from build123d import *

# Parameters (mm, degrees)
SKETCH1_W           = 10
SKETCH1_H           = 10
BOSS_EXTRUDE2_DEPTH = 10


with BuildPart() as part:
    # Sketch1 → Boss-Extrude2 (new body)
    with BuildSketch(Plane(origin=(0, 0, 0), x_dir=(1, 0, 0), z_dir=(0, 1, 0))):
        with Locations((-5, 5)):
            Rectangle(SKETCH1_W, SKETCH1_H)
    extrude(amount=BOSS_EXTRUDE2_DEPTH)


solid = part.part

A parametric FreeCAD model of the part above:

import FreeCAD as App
import Part
import Sketcher
from FreeCAD import Vector


def add_polygon(sketch, points):
    """Adds a closed chain of lines whose ends are joined by coincident constraints."""
    first, n = sketch.GeometryCount, len(points)
    for a, b in zip(points, points[1:] + points[:1]):
        sketch.addGeometry(Part.LineSegment(App.Vector(*a, 0), App.Vector(*b, 0)), False)
    for i in range(n):
        sketch.addConstraint(Sketcher.Constraint("Coincident", first + i, 2, first + (i + 1) % n, 1))

doc = App.newDocument("Part")
body = doc.addObject("PartDesign::Body", "Body")

sketch1 = body.newObject("Sketcher::SketchObject", "Sketch")
sketch1.AttachmentSupport = (doc.getObject("XZ_Plane"), [""])
sketch1.MapMode = "FlatFace"
add_polygon(sketch1, [(-10, -10), (-10, 0), (0, 0), (0, -10)])
sketch1.addConstraint(Sketcher.Constraint("Vertical", 0))
sketch1.addConstraint(Sketcher.Constraint("Horizontal", 1))
sketch1.addConstraint(Sketcher.Constraint("Vertical", 2))
sketch1.addConstraint(Sketcher.Constraint("Horizontal", 3))
sketch1.addConstraint(Sketcher.Constraint("Coincident", 1, 2, -1, 1))
sketch1.addConstraint(Sketcher.Constraint("Equal", 3, 0))
sketch1.addConstraint(Sketcher.Constraint("DistanceX", 1, 1, 1, 2, 10.0))
pad1 = body.newObject("PartDesign::Pad", "Pad")
pad1.Profile = sketch1
pad1.Length = 10
pad1.Reversed = True

doc.recompute()
